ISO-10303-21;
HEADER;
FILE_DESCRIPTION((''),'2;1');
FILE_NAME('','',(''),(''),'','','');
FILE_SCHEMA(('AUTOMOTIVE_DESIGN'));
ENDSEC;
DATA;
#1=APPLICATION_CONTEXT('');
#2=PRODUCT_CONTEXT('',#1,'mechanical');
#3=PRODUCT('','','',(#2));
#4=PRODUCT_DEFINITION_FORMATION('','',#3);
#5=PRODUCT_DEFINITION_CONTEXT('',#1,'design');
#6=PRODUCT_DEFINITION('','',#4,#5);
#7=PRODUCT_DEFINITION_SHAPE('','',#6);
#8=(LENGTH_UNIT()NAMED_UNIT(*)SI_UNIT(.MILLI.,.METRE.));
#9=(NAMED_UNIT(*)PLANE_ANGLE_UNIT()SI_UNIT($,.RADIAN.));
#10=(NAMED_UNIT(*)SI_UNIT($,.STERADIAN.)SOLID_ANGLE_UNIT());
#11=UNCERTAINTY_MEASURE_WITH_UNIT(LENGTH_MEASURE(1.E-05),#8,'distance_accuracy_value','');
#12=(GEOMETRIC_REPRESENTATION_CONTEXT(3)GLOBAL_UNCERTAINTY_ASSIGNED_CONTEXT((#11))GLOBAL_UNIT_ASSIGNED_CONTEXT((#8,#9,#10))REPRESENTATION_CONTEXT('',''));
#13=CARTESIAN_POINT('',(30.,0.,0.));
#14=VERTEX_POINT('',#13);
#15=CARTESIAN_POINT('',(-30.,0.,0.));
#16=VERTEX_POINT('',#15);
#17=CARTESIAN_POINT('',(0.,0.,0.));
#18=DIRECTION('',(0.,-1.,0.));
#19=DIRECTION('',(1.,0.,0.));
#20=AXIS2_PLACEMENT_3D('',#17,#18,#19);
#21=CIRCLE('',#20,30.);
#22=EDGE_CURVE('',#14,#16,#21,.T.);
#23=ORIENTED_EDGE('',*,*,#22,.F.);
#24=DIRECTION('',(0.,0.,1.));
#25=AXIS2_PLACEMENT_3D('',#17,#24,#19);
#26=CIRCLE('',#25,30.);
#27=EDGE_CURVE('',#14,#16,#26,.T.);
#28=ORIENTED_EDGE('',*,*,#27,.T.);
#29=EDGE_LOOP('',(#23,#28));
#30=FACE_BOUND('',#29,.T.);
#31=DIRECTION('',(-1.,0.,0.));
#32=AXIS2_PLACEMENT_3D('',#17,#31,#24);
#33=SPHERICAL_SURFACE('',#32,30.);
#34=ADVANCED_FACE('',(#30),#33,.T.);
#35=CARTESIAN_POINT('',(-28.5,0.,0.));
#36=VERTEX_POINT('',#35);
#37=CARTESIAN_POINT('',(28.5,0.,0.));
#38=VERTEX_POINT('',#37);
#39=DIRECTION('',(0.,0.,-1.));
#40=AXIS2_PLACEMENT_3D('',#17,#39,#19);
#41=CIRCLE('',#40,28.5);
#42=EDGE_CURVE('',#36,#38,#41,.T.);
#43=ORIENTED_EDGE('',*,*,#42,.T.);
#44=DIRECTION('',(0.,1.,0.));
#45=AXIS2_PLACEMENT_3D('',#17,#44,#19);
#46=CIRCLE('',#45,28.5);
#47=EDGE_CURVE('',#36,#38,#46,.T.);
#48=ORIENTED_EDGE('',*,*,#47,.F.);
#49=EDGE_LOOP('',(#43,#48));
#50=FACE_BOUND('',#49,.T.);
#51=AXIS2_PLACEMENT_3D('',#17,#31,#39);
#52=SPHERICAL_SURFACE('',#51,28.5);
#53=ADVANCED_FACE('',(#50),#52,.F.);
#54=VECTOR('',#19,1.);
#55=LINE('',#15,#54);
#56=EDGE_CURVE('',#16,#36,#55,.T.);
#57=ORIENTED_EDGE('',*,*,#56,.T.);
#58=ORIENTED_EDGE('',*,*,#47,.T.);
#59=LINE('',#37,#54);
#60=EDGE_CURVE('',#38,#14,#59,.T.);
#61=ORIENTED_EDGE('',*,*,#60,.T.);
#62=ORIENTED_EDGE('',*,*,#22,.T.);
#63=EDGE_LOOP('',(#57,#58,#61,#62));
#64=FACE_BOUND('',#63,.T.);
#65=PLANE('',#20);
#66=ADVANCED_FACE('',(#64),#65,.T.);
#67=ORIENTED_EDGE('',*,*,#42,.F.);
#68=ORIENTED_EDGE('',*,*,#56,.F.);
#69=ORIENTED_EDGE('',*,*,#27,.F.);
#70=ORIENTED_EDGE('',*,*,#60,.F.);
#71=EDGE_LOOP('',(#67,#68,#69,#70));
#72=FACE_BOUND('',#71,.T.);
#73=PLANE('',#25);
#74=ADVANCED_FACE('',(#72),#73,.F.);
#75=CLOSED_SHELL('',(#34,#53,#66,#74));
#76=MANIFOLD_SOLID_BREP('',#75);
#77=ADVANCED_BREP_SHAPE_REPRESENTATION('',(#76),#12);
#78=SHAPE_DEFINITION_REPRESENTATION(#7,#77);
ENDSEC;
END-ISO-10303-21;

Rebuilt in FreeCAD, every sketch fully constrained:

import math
import FreeCAD as App
import Part
import Sketcher

V = App.Vector
Q = App.Units.Quantity

doc = App.newDocument("Part")
body = doc.addObject("PartDesign::Body", "Body")

sketch1 = doc.addObject("Sketcher::SketchObject", "Sketch")
body.addObject(sketch1)
sketch1.AttachmentSupport = (doc.XY_Plane, [""])
sketch1.MapMode = "FlatFace"
sketch1.addGeometry(Part.LineSegment(V(-30, 0, 0), V(-28.5, 0, 0)), False)
sketch1.addGeometry(Part.ArcOfCircle(Part.Circle(V(0, 0, 0), V(0, 0, 1), 28.5), math.radians(0), math.radians(180)), False)
sketch1.addGeometry(Part.LineSegment(V(28.5, 0, 0), V(30, 0, 0)), False)
sketch1.addGeometry(Part.ArcOfCircle(Part.Circle(V(0, 0, 0), V(0, 0, 1), 30), math.radians(0), math.radians(180)), False)
sketch1.addConstraint(Sketcher.Constraint("Coincident", 0, 2, 1, 2))
sketch1.addConstraint(Sketcher.Constraint("Coincident", 1, 1, 2, 1))
sketch1.addConstraint(Sketcher.Constraint("Coincident", 2, 2, 3, 1))
sketch1.addConstraint(Sketcher.Constraint("Coincident", 3, 2, 0, 1))
sketch1.addConstraint(Sketcher.Constraint("Horizontal", 0))
sketch1.addConstraint(Sketcher.Constraint("Horizontal", 2))
sketch1.addConstraint(Sketcher.Constraint("Coincident", 1, 3, -1, 1))
sketch1.addConstraint(Sketcher.Constraint("Coincident", 3, 3, -1, 1))
sketch1.addConstraint(Sketcher.Constraint("PointOnObject", 0, 2, -1))
sketch1.addConstraint(Sketcher.Constraint("PointOnObject", 1, 1, -1))
sketch1.addConstraint(Sketcher.Constraint("Radius", 3, Q("30 mm")))
sketch1.addConstraint(Sketcher.Constraint("Radius", 1, Q("28.5 mm")))
revolution = doc.addObject("PartDesign::Revolution", "Revolution")
body.addObject(revolution)
revolution.Profile = sketch1
revolution.ReferenceAxis = (sketch1, ["H_Axis"])
revolution.Angle = 90

doc.recompute()
